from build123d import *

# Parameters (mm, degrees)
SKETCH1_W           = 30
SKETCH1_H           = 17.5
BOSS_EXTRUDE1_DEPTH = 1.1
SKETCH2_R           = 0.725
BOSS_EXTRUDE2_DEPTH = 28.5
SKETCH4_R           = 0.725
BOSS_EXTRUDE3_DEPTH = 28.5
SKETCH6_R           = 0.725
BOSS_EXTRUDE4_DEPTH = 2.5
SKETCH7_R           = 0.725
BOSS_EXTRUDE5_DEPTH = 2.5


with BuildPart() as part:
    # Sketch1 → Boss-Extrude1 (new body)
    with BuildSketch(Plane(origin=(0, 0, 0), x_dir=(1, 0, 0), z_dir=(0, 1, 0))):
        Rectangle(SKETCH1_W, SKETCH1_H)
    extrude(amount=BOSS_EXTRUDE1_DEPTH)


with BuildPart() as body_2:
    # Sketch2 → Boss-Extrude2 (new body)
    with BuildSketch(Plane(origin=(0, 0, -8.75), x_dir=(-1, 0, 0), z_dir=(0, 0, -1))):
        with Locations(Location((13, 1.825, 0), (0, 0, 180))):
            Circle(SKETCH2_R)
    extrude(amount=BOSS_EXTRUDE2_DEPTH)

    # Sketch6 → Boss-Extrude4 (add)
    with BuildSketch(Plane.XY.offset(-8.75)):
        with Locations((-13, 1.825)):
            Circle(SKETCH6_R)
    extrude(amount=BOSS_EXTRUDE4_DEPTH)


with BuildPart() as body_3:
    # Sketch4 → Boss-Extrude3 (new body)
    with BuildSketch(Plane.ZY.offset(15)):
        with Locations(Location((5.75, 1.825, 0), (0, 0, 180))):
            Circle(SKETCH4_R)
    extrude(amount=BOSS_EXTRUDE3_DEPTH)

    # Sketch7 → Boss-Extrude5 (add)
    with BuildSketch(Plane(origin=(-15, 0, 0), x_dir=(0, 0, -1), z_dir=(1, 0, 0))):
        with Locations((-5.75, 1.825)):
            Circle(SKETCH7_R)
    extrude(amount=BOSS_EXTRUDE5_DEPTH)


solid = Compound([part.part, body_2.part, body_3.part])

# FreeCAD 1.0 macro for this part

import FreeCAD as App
import Part
import Sketcher


def add_polygon(sketch, points):
    """Adds a closed chain of lines whose ends are joined by coincident constraints."""
    first, n = sketch.GeometryCount, len(points)
    for a, b in zip(points, points[1:] + points[:1]):
        sketch.addGeometry(Part.LineSegment(App.Vector(*a, 0), App.Vector(*b, 0)), False)
    for i in range(n):
        sketch.addConstraint(Sketcher.Constraint("Coincident", first + i, 2, first + (i + 1) % n, 1))

doc = App.newDocument("Part")
body = doc.addObject("PartDesign::Body", "Body")

sketch1 = body.newObject("Sketcher::SketchObject", "Sketch")
sketch1.AttachmentSupport = (doc.getObject("XZ_Plane"), [""])
sketch1.MapMode = "FlatFace"
add_polygon(sketch1, [(-15, -9), (-15, 9), (15, 9), (15, -9)])
sketch1.addConstraint(Sketcher.Constraint("Vertical", 0))
sketch1.addConstraint(Sketcher.Constraint("Horizontal", 1))
sketch1.addConstraint(Sketcher.Constraint("Vertical", 2))
sketch1.addConstraint(Sketcher.Constraint("Horizontal", 3))
sketch1.addConstraint(Sketcher.Constraint("Symmetric", 0, 2, 2, 2, -1, 1))
sketch1.addConstraint(Sketcher.Constraint("DistanceX", 1, 1, 1, 2, 30.0))
sketch1.addConstraint(Sketcher.Constraint("DistanceY", 0, 1, 0, 2, 17.5))
pad1 = body.newObject("PartDesign::Pad", "Pad")
pad1.Profile = sketch1
pad1.Length = 1.1
pad1.Reversed = True
body2 = doc.addObject("PartDesign::Body", "Body001")

sketch2 = body2.newObject("Sketcher::SketchObject", "Sketch001")
sketch2.AttachmentSupport = (doc.getObject("XY_Plane001"), [""])
sketch2.MapMode = "FlatFace"
sketch2.AttachmentOffset = App.Placement(App.Vector(0, 0, -8.75), App.Rotation())
sketch2.addGeometry(Part.Circle(App.Vector(-13, 1.8, 0), App.Vector(0, 0, 1), 0.7), False)
sketch2.addConstraint(Sketcher.Constraint("Diameter", 0, 1.45))
sketch2.addConstraint(Sketcher.Constraint("DistanceX", 0, 3, -1, 1, 13.0))
sketch2.addConstraint(Sketcher.Constraint("DistanceY", -1, 1, 0, 3, 1.825))
pad2 = body2.newObject("PartDesign::Pad", "Pad001")
pad2.Profile = sketch2
pad2.Length = 28.5
pad2.Reversed = True

sketch3 = body2.newObject("Sketcher::SketchObject", "Sketch002")
sketch3.AttachmentSupport = (doc.getObject("XY_Plane001"), [""])
sketch3.MapMode = "FlatFace"
sketch3.AttachmentOffset = App.Placement(App.Vector(0, 0, -8.75), App.Rotation())
sketch3.addGeometry(Part.Circle(App.Vector(-13, 1.8, 0), App.Vector(0, 0, 1), 0.7), False)
sketch3.addConstraint(Sketcher.Constraint("Diameter", 0, 1.45))
sketch3.addConstraint(Sketcher.Constraint("DistanceX", 0, 3, -1, 1, 13.0))
sketch3.addConstraint(Sketcher.Constraint("DistanceY", -1, 1, 0, 3, 1.825))
pad3 = body2.newObject("PartDesign::Pad", "Pad002")
pad3.Profile = sketch3
pad3.Length = 2.5
body3 = doc.addObject("PartDesign::Body", "Body002")

sketch4 = body3.newObject("Sketcher::SketchObject", "Sketch003")
sketch4.AttachmentSupport = (doc.getObject("YZ_Plane002"), [""])
sketch4.MapMode = "FlatFace"
sketch4.AttachmentOffset = App.Placement(App.Vector(0, 0, -15), App.Rotation())
sketch4.addGeometry(Part.Circle(App.Vector(1.8, 5.8, 0), App.Vector(0, 0, 1), 0.7), False)
sketch4.addConstraint(Sketcher.Constraint("Diameter", 0, 1.45))
sketch4.addConstraint(Sketcher.Constraint("DistanceY", -1, 1, 0, 3, 5.75))
sketch4.addConstraint(Sketcher.Constraint("DistanceX", -1, 1, 0, 3, 1.825))
pad4 = body3.newObject("PartDesign::Pad", "Pad003")
pad4.Profile = sketch4
pad4.Length = 28.5
pad4.Reversed = True

sketch5 = body3.newObject("Sketcher::SketchObject", "Sketch004")
sketch5.AttachmentSupport = (doc.getObject("YZ_Plane002"), [""])
sketch5.MapMode = "FlatFace"
sketch5.AttachmentOffset = App.Placement(App.Vector(0, 0, -15), App.Rotation())
sketch5.addGeometry(Part.Circle(App.Vector(1.8, 5.8, 0), App.Vector(0, 0, 1), 0.7), False)
sketch5.addConstraint(Sketcher.Constraint("Diameter", 0, 1.45))
sketch5.addConstraint(Sketcher.Constraint("DistanceY", -1, 1, 0, 3, 5.75))
sketch5.addConstraint(Sketcher.Constraint("DistanceX", -1, 1, 0, 3, 1.825))
pad5 = body3.newObject("PartDesign::Pad", "Pad004")
pad5.Profile = sketch5
pad5.Length = 2.5

doc.recompute()
